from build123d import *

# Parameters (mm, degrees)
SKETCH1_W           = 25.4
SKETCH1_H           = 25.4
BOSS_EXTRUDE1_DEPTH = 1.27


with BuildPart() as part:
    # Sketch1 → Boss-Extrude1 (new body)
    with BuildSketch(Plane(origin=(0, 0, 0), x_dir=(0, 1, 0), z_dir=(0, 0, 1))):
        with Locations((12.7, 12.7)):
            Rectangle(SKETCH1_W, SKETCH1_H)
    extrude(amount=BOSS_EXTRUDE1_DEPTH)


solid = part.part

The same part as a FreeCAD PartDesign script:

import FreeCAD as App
import Part
import Sketcher
Q = App.Units.Quantity


def add_polygon(sketch, points):
    """Adds a closed chain of lines whose ends are joined by coincident constraints."""
    first, n = sketch.GeometryCount, len(points)
    for a, b in zip(points, points[1:] + points[:1]):
        sketch.addGeometry(Part.LineSegment(App.Vector(*a, 0), App.Vector(*b, 0)), False)
    for i in range(n):
        sketch.addConstraint(Sketcher.Constraint("Coincident", first + i, 2, first + (i + 1) % n, 1))

doc = App.newDocument("Part")
body = doc.addObject("PartDesign::Body", "Body")

# Sketch on XY plane
sketch1 = body.newObject("Sketcher::SketchObject", "Sketch")
sketch1.AttachmentSupport = (doc.getObject("XY_Plane"), [""])
sketch1.MapMode = "FlatFace"
add_polygon(sketch1, [(-25.4, 0), (0, 0), (0, 25.4), (-25.4, 25.4)])  # lines 0-3
sketch1.addConstraint([
    Sketcher.Constraint("Horizontal", 0),
    Sketcher.Constraint("Vertical", 1),
    Sketcher.Constraint("Horizontal", 2),
    Sketcher.Constraint("Vertical", 3),
    Sketcher.Constraint("Coincident", 0, 2, -1, 1),
    Sketcher.Constraint("Equal", 2, 1),
    Sketcher.Constraint("DistanceX", 0, 1, 0, 2, Q("1 in")),
])
pad1 = body.newObject("PartDesign::Pad", "Pad")
pad1.Profile = sketch1
pad1.Length = Q("0.05 in")

doc.recompute()
